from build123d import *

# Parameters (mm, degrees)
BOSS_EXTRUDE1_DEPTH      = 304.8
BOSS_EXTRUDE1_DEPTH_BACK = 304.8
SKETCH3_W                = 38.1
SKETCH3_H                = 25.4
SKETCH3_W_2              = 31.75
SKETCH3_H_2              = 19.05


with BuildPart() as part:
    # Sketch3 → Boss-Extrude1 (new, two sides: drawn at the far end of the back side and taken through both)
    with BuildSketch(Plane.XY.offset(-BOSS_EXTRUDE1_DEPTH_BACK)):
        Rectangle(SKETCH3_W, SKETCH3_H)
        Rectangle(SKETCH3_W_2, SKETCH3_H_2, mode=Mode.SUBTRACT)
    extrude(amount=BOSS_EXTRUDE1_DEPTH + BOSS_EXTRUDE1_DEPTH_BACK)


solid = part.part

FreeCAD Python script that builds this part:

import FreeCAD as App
import Part
import Sketcher

V = App.Vector
Q = App.Units.Quantity

doc = App.newDocument("Part")
body = doc.addObject("PartDesign::Body", "Body")

# Sketch on XY plane
sketch1 = body.newObject("Sketcher::SketchObject", "Sketch")
sketch1.AttachmentSupport = (doc.getObject("XY_Plane"), [""])
sketch1.MapMode = "FlatFace"
sketch1.addGeometry(Part.LineSegment(V(-19, 13, 0), V(-19, -13, 0)), False)
sketch1.addGeometry(Part.LineSegment(V(-19, -13, 0), V(19, -13, 0)), False)
sketch1.addGeometry(Part.LineSegment(V(19, -13, 0), V(19, 13, 0)), False)
sketch1.addGeometry(Part.LineSegment(V(19, 13, 0), V(-19, 13, 0)), False)
sketch1.addGeometry(Part.LineSegment(V(16, -10, 0), V(-16, -10, 0)), False)
sketch1.addGeometry(Part.LineSegment(V(-16, -10, 0), V(-16, 10, 0)), False)
sketch1.addGeometry(Part.LineSegment(V(-16, 10, 0), V(16, 10, 0)), False)
sketch1.addGeometry(Part.LineSegment(V(16, 10, 0), V(16, -10, 0)), False)
sketch1.addConstraint(Sketcher.Constraint("Coincident", 0, 2, 1, 1))
sketch1.addConstraint(Sketcher.Constraint("Coincident", 1, 2, 2, 1))
sketch1.addConstraint(Sketcher.Constraint("Coincident", 2, 2, 3, 1))
sketch1.addConstraint(Sketcher.Constraint("Coincident", 3, 2, 0, 1))
sketch1.addConstraint(Sketcher.Constraint("Coincident", 4, 2, 5, 1))
sketch1.addConstraint(Sketcher.Constraint("Coincident", 5, 2, 6, 1))
sketch1.addConstraint(Sketcher.Constraint("Coincident", 6, 2, 7, 1))
sketch1.addConstraint(Sketcher.Constraint("Coincident", 7, 2, 4, 1))
sketch1.addConstraint(Sketcher.Constraint("Vertical", 0))
sketch1.addConstraint(Sketcher.Constraint("Horizontal", 1))
sketch1.addConstraint(Sketcher.Constraint("Vertical", 2))
sketch1.addConstraint(Sketcher.Constraint("Horizontal", 3))
sketch1.addConstraint(Sketcher.Constraint("Horizontal", 4))
sketch1.addConstraint(Sketcher.Constraint("Vertical", 5))
sketch1.addConstraint(Sketcher.Constraint("Horizontal", 6))
sketch1.addConstraint(Sketcher.Constraint("Vertical", 7))
sketch1.addConstraint(Sketcher.Constraint("Symmetric", 0, 2, 2, 2, -1, 1))
sketch1.addConstraint(Sketcher.Constraint("Symmetric", 4, 2, 6, 2, -1, 1))
sketch1.addConstraint(Sketcher.Constraint("DistanceY", 0, 2, 0, 1, Q("1 in")))
sketch1.addConstraint(Sketcher.Constraint("DistanceX", 1, 1, 1, 2, Q("1.5 in")))
sketch1.addConstraint(Sketcher.Constraint("DistanceX", 4, 2, 4, 1, Q("1.25 in")))
sketch1.addConstraint(Sketcher.Constraint("DistanceY", 5, 1, 5, 2, Q("0.75 in")))
pad1 = body.newObject("PartDesign::Pad", "Pad")
pad1.Profile = sketch1
pad1.Type = "TwoLengths"
pad1.Length = Q("12 in")
pad1.Length2 = Q("12 in")

doc.recompute()
